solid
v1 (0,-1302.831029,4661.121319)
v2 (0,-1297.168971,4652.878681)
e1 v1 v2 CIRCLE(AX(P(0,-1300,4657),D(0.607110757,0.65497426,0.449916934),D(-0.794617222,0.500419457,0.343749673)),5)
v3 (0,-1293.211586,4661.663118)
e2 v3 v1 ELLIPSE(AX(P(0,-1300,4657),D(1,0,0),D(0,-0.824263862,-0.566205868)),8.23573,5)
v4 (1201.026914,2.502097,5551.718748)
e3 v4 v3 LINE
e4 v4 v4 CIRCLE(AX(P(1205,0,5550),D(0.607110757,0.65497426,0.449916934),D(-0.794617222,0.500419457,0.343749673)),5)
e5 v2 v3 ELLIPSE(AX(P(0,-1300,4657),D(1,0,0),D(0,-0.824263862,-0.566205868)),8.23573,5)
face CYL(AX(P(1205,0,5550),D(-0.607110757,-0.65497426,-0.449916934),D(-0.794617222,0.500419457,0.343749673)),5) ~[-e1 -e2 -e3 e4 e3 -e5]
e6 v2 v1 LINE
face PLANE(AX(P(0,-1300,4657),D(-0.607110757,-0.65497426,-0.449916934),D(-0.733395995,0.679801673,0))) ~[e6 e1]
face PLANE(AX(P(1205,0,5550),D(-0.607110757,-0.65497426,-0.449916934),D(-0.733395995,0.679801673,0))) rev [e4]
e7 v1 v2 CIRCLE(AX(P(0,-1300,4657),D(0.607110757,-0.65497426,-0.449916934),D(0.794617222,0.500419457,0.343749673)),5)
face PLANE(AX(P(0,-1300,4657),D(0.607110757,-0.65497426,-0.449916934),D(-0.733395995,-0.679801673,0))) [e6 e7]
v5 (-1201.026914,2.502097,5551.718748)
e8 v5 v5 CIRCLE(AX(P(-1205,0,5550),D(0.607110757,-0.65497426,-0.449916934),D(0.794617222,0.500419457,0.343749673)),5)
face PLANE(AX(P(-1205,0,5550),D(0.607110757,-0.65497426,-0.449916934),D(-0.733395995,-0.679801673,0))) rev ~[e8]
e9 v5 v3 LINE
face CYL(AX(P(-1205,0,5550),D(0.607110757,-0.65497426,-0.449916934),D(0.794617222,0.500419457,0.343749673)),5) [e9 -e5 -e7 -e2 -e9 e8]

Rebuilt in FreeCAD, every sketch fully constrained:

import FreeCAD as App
import Part
import Sketcher

V = App.Vector

doc = App.newDocument("Part")
body = doc.addObject("PartDesign::Body", "Body")

# Sketch on an angled plane
sketch1 = doc.addObject("Sketcher::SketchObject", "Sketch")
body.addObject(sketch1)
sketch1.Placement = App.Placement(V(-1960.122309, 2114.654774, 1452.605164), App.Rotation(V(0.794617222, 0.500419457, 0.343749673), V(0, -0.566205868, 0.824263862), V(0.607110757, -0.65497426, -0.449916934), "ZXY"))
sketch1.addGeometry(Part.Circle(V(950, 4575, 0), V(0, 0, 1), 5), False)
sketch1.addConstraint([
    Sketcher.Constraint("Diameter", 0, 10.0),
    Sketcher.Constraint("DistanceX", -1, 1, 0, 3, 950.296934),
    Sketcher.Constraint("DistanceY", -1, 1, 0, 3, 4574.664436),
])

# Sketch on an angled plane
sketch2 = doc.addObject("Sketcher::SketchObject", "Sketch001")
body.addObject(sketch2)
sketch2.Placement = App.Placement(V(-648.132972, -600.769408, 0), App.Rotation(V(0.679801673, -0.733395995, 0), V(0, 0, 1), V(-0.733395995, -0.679801673, 0), "ZXY"))
sketch2.addGeometry(Part.LineSegment(V(-819, 5550, 0), V(953, 4657, 0)), False)
sketch2.addConstraint([
    Sketcher.Constraint("DistanceY", -1, 1, 0, 1, 5550.000001),
    Sketcher.Constraint("DistanceY", -1, 1, 0, 2, 4657.000001),
    Sketcher.Constraint("DistanceX", 0, 1, 0, 2, 1772.57581),
    Sketcher.Constraint("DistanceX", 0, 1, -1, 1, 819.161016),
])
doc.recompute()

additivepipe = doc.addObject("PartDesign::AdditivePipe", "AdditivePipe")
body.addObject(additivepipe)
additivepipe.Profile = sketch1
additivepipe.Spine = (sketch2, ["Edge1"])
body2 = doc.addObject("PartDesign::Body", "Body001")
doc.recompute()

body2.BaseFeature = body
doc.recompute()

mirroring = doc.addObject("Part::Mirroring", "Mirroring")
mirroring.Source = body
mirroring.Base = V(0, 0, 0)
mirroring.Normal = V(1, 0, 0)
body3 = doc.addObject("PartDesign::Body", "Body002")
body3.BaseFeature = mirroring
boolean = doc.addObject("PartDesign::Boolean", "Boolean")
body2.addObject(boolean)
boolean.Type = "Fuse"
boolean.addObjects([body3])
doc.recompute()
mirroring.Visibility = False

doc.recompute()
